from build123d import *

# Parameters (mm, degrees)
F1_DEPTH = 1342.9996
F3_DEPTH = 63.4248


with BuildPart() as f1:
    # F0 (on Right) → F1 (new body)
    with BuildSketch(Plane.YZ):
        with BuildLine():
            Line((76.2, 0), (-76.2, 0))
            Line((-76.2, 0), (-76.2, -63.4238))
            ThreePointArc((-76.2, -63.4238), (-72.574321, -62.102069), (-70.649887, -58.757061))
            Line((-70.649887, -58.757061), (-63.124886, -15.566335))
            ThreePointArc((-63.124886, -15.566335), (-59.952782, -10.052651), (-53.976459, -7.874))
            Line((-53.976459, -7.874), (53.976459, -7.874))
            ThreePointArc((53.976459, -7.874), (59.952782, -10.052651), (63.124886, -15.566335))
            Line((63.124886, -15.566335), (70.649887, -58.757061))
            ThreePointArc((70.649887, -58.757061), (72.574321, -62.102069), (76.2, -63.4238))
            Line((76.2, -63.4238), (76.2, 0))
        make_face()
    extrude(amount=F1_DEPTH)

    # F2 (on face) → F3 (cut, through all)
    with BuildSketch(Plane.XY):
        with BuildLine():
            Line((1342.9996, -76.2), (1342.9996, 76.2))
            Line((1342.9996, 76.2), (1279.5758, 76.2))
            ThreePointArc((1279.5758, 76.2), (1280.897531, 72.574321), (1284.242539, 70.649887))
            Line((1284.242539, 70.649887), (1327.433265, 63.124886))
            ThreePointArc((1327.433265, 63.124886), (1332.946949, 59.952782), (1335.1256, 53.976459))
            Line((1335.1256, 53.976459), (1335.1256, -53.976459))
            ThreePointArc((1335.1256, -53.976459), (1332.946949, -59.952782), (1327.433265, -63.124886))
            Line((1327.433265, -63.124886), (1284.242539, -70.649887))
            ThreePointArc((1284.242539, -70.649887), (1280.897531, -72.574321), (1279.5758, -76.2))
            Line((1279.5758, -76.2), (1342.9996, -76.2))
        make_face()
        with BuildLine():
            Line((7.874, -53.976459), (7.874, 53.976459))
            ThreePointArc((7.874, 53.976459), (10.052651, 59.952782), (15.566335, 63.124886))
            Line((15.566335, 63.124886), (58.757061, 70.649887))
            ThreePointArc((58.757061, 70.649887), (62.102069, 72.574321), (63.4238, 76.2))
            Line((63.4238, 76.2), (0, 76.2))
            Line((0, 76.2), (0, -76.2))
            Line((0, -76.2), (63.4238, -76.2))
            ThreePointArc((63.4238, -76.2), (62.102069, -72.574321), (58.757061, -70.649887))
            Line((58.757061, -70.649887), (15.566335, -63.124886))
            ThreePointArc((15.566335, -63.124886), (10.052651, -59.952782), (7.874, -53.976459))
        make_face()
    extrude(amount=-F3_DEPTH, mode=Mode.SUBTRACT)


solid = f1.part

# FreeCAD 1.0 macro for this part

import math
import FreeCAD as App
import Part
import Sketcher
from FreeCAD import Vector
Q = App.Units.Quantity

doc = App.newDocument("Part")
body = doc.addObject("PartDesign::Body", "Body")

sketch1 = body.newObject("Sketcher::SketchObject", "Sketch")
sketch1.AttachmentSupport = (doc.getObject("YZ_Plane"), [""])
sketch1.MapMode = "FlatFace"
sketch1.addGeometry([
    Part.LineSegment(Vector(76.2, 0, 0), Vector(-76.2, 0, 0)),
    Part.LineSegment(Vector(-76.2, 0, 0), Vector(-76.2, -63.4238, 0)),
    Part.ArcOfCircle(Part.Circle(Vector(-76.200001, -57.790078, 0), Vector(0, 0, 1), 5.633722), math.radians(-89.999987), math.radians(-9.8833)),
    Part.LineSegment(Vector(-70.649887, -58.757061, 0), Vector(-63.124886, -15.566335, 0)),
    Part.ArcOfCircle(Part.Circle(Vector(-53.97646, -17.160239, 0), Vector(0, 0, 1), 9.286239), math.radians(89.999995), math.radians(170.116728)),
    Part.LineSegment(Vector(-53.976459, -7.874, 0), Vector(53.976459, -7.874, 0)),
    Part.ArcOfCircle(Part.Circle(Vector(53.97646, -17.160239, 0), Vector(0, 0, 1), 9.286239), math.radians(9.883272), math.radians(90.000005)),
    Part.LineSegment(Vector(63.124886, -15.566335, 0), Vector(70.649887, -58.757061, 0)),
    Part.ArcOfCircle(Part.Circle(Vector(76.200001, -57.790078, 0), Vector(0, 0, 1), 5.633722), math.radians(-170.1167), math.radians(-90.000013)),
    Part.LineSegment(Vector(76.2, -63.4238, 0), Vector(76.2, 0, 0)),
], False)
sketch1.addConstraint([
    Sketcher.Constraint("Coincident", 0, 2, 1, 1),
    Sketcher.Constraint("Coincident", 1, 2, 2, 1),
    Sketcher.Constraint("Tangent", 2, 2, 3, 1),
    Sketcher.Constraint("Tangent", 3, 2, 4, 2),
    Sketcher.Constraint("Tangent", 4, 1, 5, 1),
    Sketcher.Constraint("Tangent", 5, 2, 6, 2),
    Sketcher.Constraint("Tangent", 6, 1, 7, 1),
    Sketcher.Constraint("Tangent", 7, 2, 8, 1),
    Sketcher.Constraint("Coincident", 8, 2, 9, 1),
    Sketcher.Constraint("Coincident", 9, 2, 0, 1),
    Sketcher.Constraint("Horizontal", 0),
    Sketcher.Constraint("Vertical", 1),
    Sketcher.Constraint("Horizontal", 5),
    Sketcher.Constraint("Vertical", 9),
    Sketcher.Constraint("Equal", 4, 6),
    Sketcher.Constraint("Equal", 2, 8),
    Sketcher.Constraint("Symmetric", 0, 2, 9, 2, -1, 1),
    Sketcher.Constraint("Symmetric", 2, 3, 8, 3, -2),
    Sketcher.Constraint("Horizontal", 3, 2, 6, 1),
    Sketcher.Constraint("Vertical", 2, 3, 0, 2),
    Sketcher.Constraint("DistanceX", 0, 2, 0, 1, Q("6 in")),
    Sketcher.Constraint("Radius", 2, Q("0.2218001 in")),
    Sketcher.Constraint("Radius", 4, Q("0.3656 in")),
    Sketcher.Constraint("DistanceY", 1, 2, 1, 1, Q("2.497 in")),
    Sketcher.Constraint("DistanceY", 4, 1, -1, 1, Q("0.31 in")),
    Sketcher.Constraint("DistanceX", 2, 2, 3, 2, 7.525001),
])
pad1 = body.newObject("PartDesign::Pad", "Pad")
pad1.Profile = sketch1
pad1.Length = Q("52.874 in")

sketch2 = body.newObject("Sketcher::SketchObject", "Sketch001")
sketch2.AttachmentSupport = (doc.getObject("XY_Plane"), [""])
sketch2.MapMode = "FlatFace"
sketch2.addGeometry([
    Part.LineSegment(Vector(1342.9996, -76.2, 0), Vector(1342.9996, 76.2, 0)),
    Part.LineSegment(Vector(1342.9996, 76.2, 0), Vector(1279.5758, 76.2, 0)),
    Part.ArcOfCircle(Part.Circle(Vector(1285.209522, 76.200001, 0), Vector(0, 0, 1), 5.633722), math.radians(-179.999987), math.radians(-99.8833)),
    Part.LineSegment(Vector(1284.242539, 70.649887, 0), Vector(1327.433265, 63.124886, 0)),
    Part.ArcOfCircle(Part.Circle(Vector(1325.839361, 53.97646, 0), Vector(0, 0, 1), 9.286239), math.radians(-0.000005), math.radians(80.116728)),
    Part.LineSegment(Vector(1335.1256, 53.976459, 0), Vector(1335.1256, -53.976459, 0)),
    Part.ArcOfCircle(Part.Circle(Vector(1325.839361, -53.97646, 0), Vector(0, 0, 1), 9.286239), math.radians(-80.116728), math.radians(0.000005)),
    Part.LineSegment(Vector(1327.433265, -63.124886, 0), Vector(1284.242539, -70.649887, 0)),
    Part.ArcOfCircle(Part.Circle(Vector(1285.209522, -76.200001, 0), Vector(0, 0, 1), 5.633722), math.radians(99.8833), math.radians(179.999987)),
    Part.LineSegment(Vector(1279.5758, -76.2, 0), Vector(1342.9996, -76.2, 0)),
    Part.LineSegment(Vector(7.874, -53.976459, 0), Vector(7.874, 53.976459, 0)),
    Part.ArcOfCircle(Part.Circle(Vector(17.160239, 53.97646, 0), Vector(0, 0, 1), 9.286239), math.radians(99.883272), math.radians(180.000005)),
    Part.LineSegment(Vector(15.566335, 63.124886, 0), Vector(58.757061, 70.649887, 0)),
    Part.ArcOfCircle(Part.Circle(Vector(57.790078, 76.200001, 0), Vector(0, 0, 1), 5.633722), math.radians(-80.1167), math.radians(-0.000013)),
    Part.LineSegment(Vector(63.4238, 76.2, 0), Vector(0, 76.2, 0)),
    Part.LineSegment(Vector(0, 76.2, 0), Vector(0, -76.2, 0)),
    Part.LineSegment(Vector(0, -76.2, 0), Vector(63.4238, -76.2, 0)),
    Part.ArcOfCircle(Part.Circle(Vector(57.790078, -76.200001, 0), Vector(0, 0, 1), 5.633722), math.radians(0.000013), math.radians(80.1167)),
    Part.LineSegment(Vector(58.757061, -70.649887, 0), Vector(15.566335, -63.124886, 0)),
    Part.ArcOfCircle(Part.Circle(Vector(17.160239, -53.97646, 0), Vector(0, 0, 1), 9.286239), math.radians(179.999995), math.radians(260.116728)),
], False)
sketch2.addConstraint([
    Sketcher.Constraint("Coincident", 0, 2, 1, 1),
    Sketcher.Constraint("Coincident", 1, 2, 2, 1),
    Sketcher.Constraint("Tangent", 2, 2, 3, 1),
    Sketcher.Constraint("Tangent", 3, 2, 4, 2),
    Sketcher.Constraint("Tangent", 4, 1, 5, 1),
    Sketcher.Constraint("Tangent", 5, 2, 6, 2),
    Sketcher.Constraint("Tangent", 6, 1, 7, 1),
    Sketcher.Constraint("Tangent", 7, 2, 8, 1),
    Sketcher.Constraint("Coincident", 8, 2, 9, 1),
    Sketcher.Constraint("Coincident", 9, 2, 0, 1),
    Sketcher.Constraint("Tangent", 10, 2, 11, 2),
    Sketcher.Constraint("Tangent", 11, 1, 12, 1),
    Sketcher.Constraint("Tangent", 12, 2, 13, 1),
    Sketcher.Constraint("Coincident", 13, 2, 14, 1),
    Sketcher.Constraint("Coincident", 14, 2, 15, 1),
    Sketcher.Constraint("Coincident", 15, 2, 16, 1),
    Sketcher.Constraint("Coincident", 16, 2, 17, 1),
    Sketcher.Constraint("Tangent", 17, 2, 18, 1),
    Sketcher.Constraint("Tangent", 18, 2, 19, 2),
    Sketcher.Constraint("Tangent", 19, 1, 10, 1),
    Sketcher.Constraint("Vertical", 0),
    Sketcher.Constraint("Horizontal", 1),
    Sketcher.Constraint("Vertical", 5),
    Sketcher.Constraint("Horizontal", 9),
    Sketcher.Constraint("Vertical", 10),
    Sketcher.Constraint("Horizontal", 14),
    Sketcher.Constraint("Vertical", 15),
    Sketcher.Constraint("Horizontal", 16),
    Sketcher.Constraint("Equal", 4, 6),
    Sketcher.Constraint("Equal", 2, 8),
    Sketcher.Constraint("Equal", 6, 11),
    Sketcher.Constraint("Equal", 8, 13),
    Sketcher.Constraint("Equal", 13, 17),
    Sketcher.Constraint("Equal", 11, 19),
    Sketcher.Constraint("Symmetric", 14, 2, 15, 2, -1, 1),
    Sketcher.Constraint("Symmetric", 2, 3, 8, 3, -1),
    Sketcher.Constraint("Symmetric", 13, 3, 17, 3, -1),
    Sketcher.Constraint("Parallel", 7, 12),
    Sketcher.Constraint("Parallel", 3, 18),
    Sketcher.Constraint("Horizontal", 4, 3, 11, 3),
    Sketcher.Constraint("Horizontal", 2, 3, 13, 3),
    Sketcher.Constraint("Horizontal", 6, 3, 19, 3),
    Sketcher.Constraint("Horizontal", 13, 3, 0, 2),
    Sketcher.Constraint("Horizontal", 17, 3, 8, 2),
    Sketcher.Constraint("Horizontal", 1, 2, 13, 2),
    Sketcher.Constraint("Equal", 9, 14),
    Sketcher.Constraint("DistanceY", 0, 1, 0, 2, Q("6 in")),
    Sketcher.Constraint("Radius", 2, Q("0.2218001 in")),
    Sketcher.Constraint("Radius", 4, Q("0.3656 in")),
    Sketcher.Constraint("DistanceX", 1, 2, 1, 1, Q("2.497 in")),
    Sketcher.Constraint("DistanceX", -1, 1, 10, 2, Q("0.31 in")),
    Sketcher.Constraint("DistanceX", -1, 1, 0, 2, Q("52.874 in")),
    Sketcher.Constraint("DistanceY", 3, 2, 2, 2, 7.525001),
])
pocket1 = body.newObject("PartDesign::Pocket", "Pocket")
pocket1.Profile = sketch2
pocket1.Type = "ThroughAll"

doc.recompute()
